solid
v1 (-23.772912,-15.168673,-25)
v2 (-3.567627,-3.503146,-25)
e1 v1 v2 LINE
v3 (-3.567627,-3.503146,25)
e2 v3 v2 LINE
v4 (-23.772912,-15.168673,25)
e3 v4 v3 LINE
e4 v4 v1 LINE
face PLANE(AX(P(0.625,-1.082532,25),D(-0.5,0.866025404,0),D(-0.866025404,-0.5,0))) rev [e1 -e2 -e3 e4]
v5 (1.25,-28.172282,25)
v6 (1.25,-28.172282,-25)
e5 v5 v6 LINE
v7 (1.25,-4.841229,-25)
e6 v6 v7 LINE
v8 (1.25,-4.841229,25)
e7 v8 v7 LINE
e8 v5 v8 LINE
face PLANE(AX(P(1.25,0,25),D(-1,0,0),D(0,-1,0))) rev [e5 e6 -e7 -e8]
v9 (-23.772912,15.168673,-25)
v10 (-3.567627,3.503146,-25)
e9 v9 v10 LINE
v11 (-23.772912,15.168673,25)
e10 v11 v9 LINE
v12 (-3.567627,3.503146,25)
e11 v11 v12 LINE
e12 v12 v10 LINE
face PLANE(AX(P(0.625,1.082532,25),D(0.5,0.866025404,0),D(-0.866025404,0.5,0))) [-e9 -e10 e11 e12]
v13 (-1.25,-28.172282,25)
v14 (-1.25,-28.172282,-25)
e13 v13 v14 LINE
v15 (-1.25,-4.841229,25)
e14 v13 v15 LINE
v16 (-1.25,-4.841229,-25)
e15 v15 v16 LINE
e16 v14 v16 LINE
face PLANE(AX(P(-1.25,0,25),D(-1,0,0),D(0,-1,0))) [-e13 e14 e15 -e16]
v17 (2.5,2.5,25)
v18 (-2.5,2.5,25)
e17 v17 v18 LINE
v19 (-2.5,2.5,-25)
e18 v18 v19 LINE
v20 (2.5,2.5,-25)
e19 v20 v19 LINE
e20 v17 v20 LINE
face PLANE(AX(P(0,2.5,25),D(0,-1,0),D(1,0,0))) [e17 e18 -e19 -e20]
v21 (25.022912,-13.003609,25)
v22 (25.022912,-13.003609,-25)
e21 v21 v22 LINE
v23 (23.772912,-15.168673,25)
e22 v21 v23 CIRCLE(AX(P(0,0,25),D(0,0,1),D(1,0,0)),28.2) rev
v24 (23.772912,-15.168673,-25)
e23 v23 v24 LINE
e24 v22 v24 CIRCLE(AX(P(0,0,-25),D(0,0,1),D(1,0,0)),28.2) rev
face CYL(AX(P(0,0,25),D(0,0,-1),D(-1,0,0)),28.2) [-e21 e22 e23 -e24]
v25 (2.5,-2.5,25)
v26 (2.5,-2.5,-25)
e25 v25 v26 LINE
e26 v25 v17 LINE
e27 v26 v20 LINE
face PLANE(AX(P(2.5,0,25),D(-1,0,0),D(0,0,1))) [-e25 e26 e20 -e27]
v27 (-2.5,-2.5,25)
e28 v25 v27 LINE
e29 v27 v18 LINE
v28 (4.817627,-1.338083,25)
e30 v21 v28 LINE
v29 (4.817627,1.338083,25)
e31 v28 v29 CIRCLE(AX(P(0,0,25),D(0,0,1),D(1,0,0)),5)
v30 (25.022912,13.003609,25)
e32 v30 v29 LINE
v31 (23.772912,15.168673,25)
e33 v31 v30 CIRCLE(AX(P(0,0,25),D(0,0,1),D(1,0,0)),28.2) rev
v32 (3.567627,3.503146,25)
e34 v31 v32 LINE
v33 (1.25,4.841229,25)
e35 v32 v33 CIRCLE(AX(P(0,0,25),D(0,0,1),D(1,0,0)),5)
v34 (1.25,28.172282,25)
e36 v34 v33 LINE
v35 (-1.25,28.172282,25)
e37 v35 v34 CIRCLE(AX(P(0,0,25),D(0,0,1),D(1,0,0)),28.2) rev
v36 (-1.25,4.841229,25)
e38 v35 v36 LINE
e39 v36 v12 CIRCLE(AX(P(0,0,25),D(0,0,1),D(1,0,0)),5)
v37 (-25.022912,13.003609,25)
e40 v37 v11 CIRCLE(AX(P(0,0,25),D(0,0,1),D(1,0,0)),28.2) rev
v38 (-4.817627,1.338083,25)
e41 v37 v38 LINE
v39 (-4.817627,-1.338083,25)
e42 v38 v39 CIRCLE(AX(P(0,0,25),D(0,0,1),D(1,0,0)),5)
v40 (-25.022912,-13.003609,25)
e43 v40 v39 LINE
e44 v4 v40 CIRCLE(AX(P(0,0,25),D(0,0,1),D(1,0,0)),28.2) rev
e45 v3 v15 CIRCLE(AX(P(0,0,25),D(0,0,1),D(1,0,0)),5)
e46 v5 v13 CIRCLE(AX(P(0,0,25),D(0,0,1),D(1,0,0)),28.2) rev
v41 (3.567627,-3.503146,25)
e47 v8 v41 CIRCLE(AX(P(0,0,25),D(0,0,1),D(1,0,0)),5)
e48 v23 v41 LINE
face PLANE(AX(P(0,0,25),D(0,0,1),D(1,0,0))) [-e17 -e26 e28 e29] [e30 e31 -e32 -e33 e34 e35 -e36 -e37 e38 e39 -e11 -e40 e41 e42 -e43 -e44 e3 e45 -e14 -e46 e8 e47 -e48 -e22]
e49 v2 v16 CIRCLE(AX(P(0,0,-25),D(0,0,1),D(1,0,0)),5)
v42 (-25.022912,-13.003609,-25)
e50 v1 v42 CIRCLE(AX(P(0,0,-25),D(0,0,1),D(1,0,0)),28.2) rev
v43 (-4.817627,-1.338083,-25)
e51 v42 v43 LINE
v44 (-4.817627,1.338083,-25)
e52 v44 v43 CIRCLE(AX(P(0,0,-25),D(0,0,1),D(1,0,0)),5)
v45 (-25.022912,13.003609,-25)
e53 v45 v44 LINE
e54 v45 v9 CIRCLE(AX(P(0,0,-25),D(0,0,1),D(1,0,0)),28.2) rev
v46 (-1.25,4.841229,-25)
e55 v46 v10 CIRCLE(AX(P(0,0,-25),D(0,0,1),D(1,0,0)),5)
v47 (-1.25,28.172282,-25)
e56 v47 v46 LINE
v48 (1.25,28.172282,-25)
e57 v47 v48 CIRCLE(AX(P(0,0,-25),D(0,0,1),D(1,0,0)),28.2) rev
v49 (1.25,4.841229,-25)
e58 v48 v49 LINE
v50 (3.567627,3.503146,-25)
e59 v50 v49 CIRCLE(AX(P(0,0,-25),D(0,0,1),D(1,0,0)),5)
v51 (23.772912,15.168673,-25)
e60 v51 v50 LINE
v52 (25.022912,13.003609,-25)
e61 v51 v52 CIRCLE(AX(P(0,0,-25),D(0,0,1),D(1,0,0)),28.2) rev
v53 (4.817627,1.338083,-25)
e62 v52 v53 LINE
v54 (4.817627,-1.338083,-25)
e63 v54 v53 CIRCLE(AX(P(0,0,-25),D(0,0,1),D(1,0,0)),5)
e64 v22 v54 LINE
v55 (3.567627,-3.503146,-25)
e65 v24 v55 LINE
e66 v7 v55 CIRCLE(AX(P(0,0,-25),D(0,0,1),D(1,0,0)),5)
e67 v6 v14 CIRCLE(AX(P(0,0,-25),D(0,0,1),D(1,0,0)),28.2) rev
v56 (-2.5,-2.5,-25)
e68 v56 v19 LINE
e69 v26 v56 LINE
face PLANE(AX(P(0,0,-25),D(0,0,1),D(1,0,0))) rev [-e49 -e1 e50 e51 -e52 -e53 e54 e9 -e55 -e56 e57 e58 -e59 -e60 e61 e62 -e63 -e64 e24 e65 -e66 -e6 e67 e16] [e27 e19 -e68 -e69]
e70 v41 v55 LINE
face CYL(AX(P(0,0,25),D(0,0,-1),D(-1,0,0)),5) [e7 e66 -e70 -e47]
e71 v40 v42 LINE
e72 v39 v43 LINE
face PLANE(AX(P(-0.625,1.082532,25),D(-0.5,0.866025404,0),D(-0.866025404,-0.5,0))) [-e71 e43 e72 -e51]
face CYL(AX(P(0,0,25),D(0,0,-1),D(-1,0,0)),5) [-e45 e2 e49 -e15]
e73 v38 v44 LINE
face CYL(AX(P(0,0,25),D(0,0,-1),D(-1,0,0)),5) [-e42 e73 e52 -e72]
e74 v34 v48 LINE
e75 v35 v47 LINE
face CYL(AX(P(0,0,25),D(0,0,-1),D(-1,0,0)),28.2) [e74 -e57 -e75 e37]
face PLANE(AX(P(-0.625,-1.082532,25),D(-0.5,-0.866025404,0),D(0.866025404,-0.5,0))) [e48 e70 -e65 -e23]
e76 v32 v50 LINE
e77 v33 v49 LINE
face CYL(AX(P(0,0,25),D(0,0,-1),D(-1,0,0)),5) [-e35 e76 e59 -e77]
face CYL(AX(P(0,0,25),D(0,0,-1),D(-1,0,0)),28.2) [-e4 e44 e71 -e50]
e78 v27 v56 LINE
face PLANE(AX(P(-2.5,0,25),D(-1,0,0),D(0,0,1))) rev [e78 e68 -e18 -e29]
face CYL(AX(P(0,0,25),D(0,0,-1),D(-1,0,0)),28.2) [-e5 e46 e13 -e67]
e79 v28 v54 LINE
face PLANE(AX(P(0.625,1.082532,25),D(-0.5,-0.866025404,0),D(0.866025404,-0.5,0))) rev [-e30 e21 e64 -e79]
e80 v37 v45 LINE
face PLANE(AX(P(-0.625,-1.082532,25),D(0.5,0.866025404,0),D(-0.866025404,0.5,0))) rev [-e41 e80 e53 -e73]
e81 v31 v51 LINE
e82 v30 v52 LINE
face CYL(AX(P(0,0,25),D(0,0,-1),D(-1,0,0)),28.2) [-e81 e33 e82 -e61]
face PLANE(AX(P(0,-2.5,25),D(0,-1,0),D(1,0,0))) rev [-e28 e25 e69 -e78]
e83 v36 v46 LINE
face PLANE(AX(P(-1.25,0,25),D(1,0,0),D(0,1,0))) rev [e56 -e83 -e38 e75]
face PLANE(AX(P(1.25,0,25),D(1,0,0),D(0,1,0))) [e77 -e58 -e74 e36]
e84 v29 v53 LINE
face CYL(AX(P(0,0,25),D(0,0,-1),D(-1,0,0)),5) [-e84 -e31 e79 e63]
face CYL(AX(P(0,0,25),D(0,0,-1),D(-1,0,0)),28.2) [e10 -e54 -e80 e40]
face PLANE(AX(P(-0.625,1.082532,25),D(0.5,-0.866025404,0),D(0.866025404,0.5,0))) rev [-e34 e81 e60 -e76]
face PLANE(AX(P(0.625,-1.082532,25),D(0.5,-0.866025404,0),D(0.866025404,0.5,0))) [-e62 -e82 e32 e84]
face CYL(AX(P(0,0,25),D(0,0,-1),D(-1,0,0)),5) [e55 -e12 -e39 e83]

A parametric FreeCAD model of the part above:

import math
import FreeCAD as App
import Part
import Sketcher
Q = App.Units.Quantity

doc = App.newDocument("Part")
body = doc.addObject("PartDesign::Body", "Body")

sketch1 = body.newObject("Sketcher::SketchObject", "Sketch")
sketch1.AttachmentSupport = (doc.getObject("XY_Plane"), [""])
sketch1.MapMode = "FlatFace"
sketch1.addGeometry([
    Part.LineSegment(App.Vector(25, -13, 0), App.Vector(4.8, -1.3, 0)),
    Part.ArcOfCircle(Part.Circle(App.Vector(0, 0, 0), App.Vector(0, 0, 1), 5), math.radians(-16), math.radians(16)),
    Part.LineSegment(App.Vector(4.8, 1.3, 0), App.Vector(25, 13, 0)),
    Part.ArcOfCircle(Part.Circle(App.Vector(0, 0, 0), App.Vector(0, 0, 1), 28.2), math.radians(27.46), math.radians(32.54)),
    Part.LineSegment(App.Vector(23.8, 15.2, 0), App.Vector(3.6, 3.5, 0)),
    Part.ArcOfCircle(Part.Circle(App.Vector(0, 0, 0), App.Vector(0, 0, 1), 5), math.radians(44), math.radians(76)),
    Part.LineSegment(App.Vector(1.2, 4.8, 0), App.Vector(1.2, 28.2, 0)),
    Part.ArcOfCircle(Part.Circle(App.Vector(0, 0, 0), App.Vector(0, 0, 1), 28.2), math.radians(87.46), math.radians(92.54)),
    Part.LineSegment(App.Vector(-1.2, 28.2, 0), App.Vector(-1.2, 4.8, 0)),
    Part.ArcOfCircle(Part.Circle(App.Vector(0, 0, 0), App.Vector(0, 0, 1), 5), math.radians(104), math.radians(136)),
    Part.LineSegment(App.Vector(-3.6, 3.5, 0), App.Vector(-23.8, 15.2, 0)),
    Part.ArcOfCircle(Part.Circle(App.Vector(0, 0, 0), App.Vector(0, 0, 1), 28.2), math.radians(147.46), math.radians(152.54)),
    Part.LineSegment(App.Vector(-25, 13, 0), App.Vector(-4.8, 1.3, 0)),
    Part.ArcOfCircle(Part.Circle(App.Vector(0, 0, 0), App.Vector(0, 0, 1), 5), math.radians(164), math.radians(196)),
    Part.LineSegment(App.Vector(-4.8, -1.3, 0), App.Vector(-25, -13, 0)),
    Part.ArcOfCircle(Part.Circle(App.Vector(0, 0, 0), App.Vector(0, 0, 1), 28.2), math.radians(-152.54), math.radians(-147.46)),
    Part.LineSegment(App.Vector(-23.8, -15.2, 0), App.Vector(-3.6, -3.5, 0)),
    Part.ArcOfCircle(Part.Circle(App.Vector(0, 0, 0), App.Vector(0, 0, 1), 5), math.radians(-136), math.radians(-104)),
    Part.LineSegment(App.Vector(-1.2, -4.8, 0), App.Vector(-1.2, -28.2, 0)),
    Part.ArcOfCircle(Part.Circle(App.Vector(0, 0, 0), App.Vector(0, 0, 1), 28.2), math.radians(-92.54), math.radians(-87.46)),
    Part.LineSegment(App.Vector(1.2, -28.2, 0), App.Vector(1.2, -4.8, 0)),
    Part.ArcOfCircle(Part.Circle(App.Vector(0, 0, 0), App.Vector(0, 0, 1), 5), math.radians(-76), math.radians(-44)),
    Part.LineSegment(App.Vector(3.6, -3.5, 0), App.Vector(23.8, -15.2, 0)),
    Part.ArcOfCircle(Part.Circle(App.Vector(0, 0, 0), App.Vector(0, 0, 1), 28.2), math.radians(-32.54), math.radians(-27.46)),
    Part.LineSegment(App.Vector(2.5, -2.5, 0), App.Vector(-2.5, -2.5, 0)),
    Part.LineSegment(App.Vector(-2.5, -2.5, 0), App.Vector(-2.5, 2.5, 0)),
    Part.LineSegment(App.Vector(-2.5, 2.5, 0), App.Vector(2.5, 2.5, 0)),
    Part.LineSegment(App.Vector(2.5, 2.5, 0), App.Vector(2.5, -2.5, 0)),
], False)
sketch1.addConstraint([
    Sketcher.Constraint("Coincident", 0, 2, 1, 1),
    Sketcher.Constraint("Coincident", 1, 2, 2, 1),
    Sketcher.Constraint("Coincident", 2, 2, 3, 1),
    Sketcher.Constraint("Coincident", 3, 2, 4, 1),
    Sketcher.Constraint("Coincident", 4, 2, 5, 1),
    Sketcher.Constraint("Coincident", 5, 2, 6, 1),
    Sketcher.Constraint("Coincident", 6, 2, 7, 1),
    Sketcher.Constraint("Coincident", 7, 2, 8, 1),
    Sketcher.Constraint("Coincident", 8, 2, 9, 1),
    Sketcher.Constraint("Coincident", 9, 2, 10, 1),
    Sketcher.Constraint("Coincident", 10, 2, 11, 1),
    Sketcher.Constraint("Coincident", 11, 2, 12, 1),
    Sketcher.Constraint("Coincident", 12, 2, 13, 1),
    Sketcher.Constraint("Coincident", 13, 2, 14, 1),
    Sketcher.Constraint("Coincident", 14, 2, 15, 1),
    Sketcher.Constraint("Coincident", 15, 2, 16, 1),
    Sketcher.Constraint("Coincident", 16, 2, 17, 1),
    Sketcher.Constraint("Coincident", 17, 2, 18, 1),
    Sketcher.Constraint("Coincident", 18, 2, 19, 1),
    Sketcher.Constraint("Coincident", 19, 2, 20, 1),
    Sketcher.Constraint("Coincident", 20, 2, 21, 1),
    Sketcher.Constraint("Coincident", 21, 2, 22, 1),
    Sketcher.Constraint("Coincident", 22, 2, 23, 1),
    Sketcher.Constraint("Coincident", 23, 2, 0, 1),
    Sketcher.Constraint("Coincident", 24, 2, 25, 1),
    Sketcher.Constraint("Coincident", 25, 2, 26, 1),
    Sketcher.Constraint("Coincident", 26, 2, 27, 1),
    Sketcher.Constraint("Coincident", 27, 2, 24, 1),
    Sketcher.Constraint("Vertical", 6),
    Sketcher.Constraint("Vertical", 8),
    Sketcher.Constraint("Vertical", 18),
    Sketcher.Constraint("Vertical", 20),
    Sketcher.Constraint("Horizontal", 24),
    Sketcher.Constraint("Vertical", 25),
    Sketcher.Constraint("Horizontal", 26),
    Sketcher.Constraint("Vertical", 27),
    Sketcher.Constraint("Coincident", 1, 3, -1, 1),
    Sketcher.Constraint("Coincident", 3, 3, -1, 1),
    Sketcher.Constraint("Coincident", 5, 3, -1, 1),
    Sketcher.Constraint("Coincident", 7, 3, -1, 1),
    Sketcher.Constraint("Coincident", 9, 3, -1, 1),
    Sketcher.Constraint("Coincident", 11, 3, -1, 1),
    Sketcher.Constraint("Coincident", 13, 3, -1, 1),
    Sketcher.Constraint("Coincident", 15, 3, -1, 1),
    Sketcher.Constraint("Coincident", 17, 3, -1, 1),
    Sketcher.Constraint("Coincident", 19, 3, -1, 1),
    Sketcher.Constraint("Coincident", 21, 3, -1, 1),
    Sketcher.Constraint("Coincident", 23, 3, -1, 1),
    Sketcher.Constraint("Equal", 1, 5),
    Sketcher.Constraint("Equal", 3, 7),
    Sketcher.Constraint("Equal", 5, 9),
    Sketcher.Constraint("Equal", 7, 11),
    Sketcher.Constraint("Equal", 9, 13),
    Sketcher.Constraint("Equal", 11, 15),
    Sketcher.Constraint("Equal", 13, 17),
    Sketcher.Constraint("Equal", 15, 19),
    Sketcher.Constraint("Equal", 17, 21),
    Sketcher.Constraint("Equal", 19, 23),
    Sketcher.Constraint("Symmetric", 24, 2, 26, 2, -1, 1),
    Sketcher.Constraint("Parallel", 2, 4),
    Sketcher.Constraint("Parallel", 0, 10),
    Sketcher.Constraint("Parallel", 10, 12),
    Sketcher.Constraint("Parallel", 4, 14),
    Sketcher.Constraint("Parallel", 14, 16),
    Sketcher.Constraint("Parallel", 12, 22),
    Sketcher.Constraint("Horizontal", 6, 2, 7, 2),
    Sketcher.Constraint("Horizontal", 4, 2, 9, 2),
    Sketcher.Constraint("Horizontal", 3, 2, 10, 2),
    Sketcher.Constraint("Horizontal", 2, 2, 11, 2),
    Sketcher.Constraint("Horizontal", 0, 2, 13, 2),
    Sketcher.Constraint("Horizontal", 18, 2, 19, 2),
    Sketcher.Constraint("Horizontal", 16, 2, 21, 2),
    Sketcher.Constraint("Vertical", 0, 2, 1, 2),
    Sketcher.Constraint("Vertical", 10, 2, 15, 2),
    Sketcher.Constraint("Vertical", 8, 2, 17, 2),
    Sketcher.Constraint("Equal", 26, 25),
    Sketcher.Constraint("Equal", 2, 4),
    Sketcher.Constraint("Radius", 1, 5.0),
    Sketcher.Constraint("Radius", 3, 28.2),
    Sketcher.Constraint("DistanceX", 24, 2, 24, 1, 5.0),
    Sketcher.Constraint("Angle", 0, Q("150 deg")),
    Sketcher.Constraint("DistanceX", 7, 2, 6, 2, 2.5),
    Sketcher.Constraint("DistanceX", 3, 2, 2, 2, 1.25),
])
pad1 = body.newObject("PartDesign::Pad", "Pad")
pad1.Profile = sketch1
pad1.Length = 50
pad1.Midplane = True

doc.recompute()
